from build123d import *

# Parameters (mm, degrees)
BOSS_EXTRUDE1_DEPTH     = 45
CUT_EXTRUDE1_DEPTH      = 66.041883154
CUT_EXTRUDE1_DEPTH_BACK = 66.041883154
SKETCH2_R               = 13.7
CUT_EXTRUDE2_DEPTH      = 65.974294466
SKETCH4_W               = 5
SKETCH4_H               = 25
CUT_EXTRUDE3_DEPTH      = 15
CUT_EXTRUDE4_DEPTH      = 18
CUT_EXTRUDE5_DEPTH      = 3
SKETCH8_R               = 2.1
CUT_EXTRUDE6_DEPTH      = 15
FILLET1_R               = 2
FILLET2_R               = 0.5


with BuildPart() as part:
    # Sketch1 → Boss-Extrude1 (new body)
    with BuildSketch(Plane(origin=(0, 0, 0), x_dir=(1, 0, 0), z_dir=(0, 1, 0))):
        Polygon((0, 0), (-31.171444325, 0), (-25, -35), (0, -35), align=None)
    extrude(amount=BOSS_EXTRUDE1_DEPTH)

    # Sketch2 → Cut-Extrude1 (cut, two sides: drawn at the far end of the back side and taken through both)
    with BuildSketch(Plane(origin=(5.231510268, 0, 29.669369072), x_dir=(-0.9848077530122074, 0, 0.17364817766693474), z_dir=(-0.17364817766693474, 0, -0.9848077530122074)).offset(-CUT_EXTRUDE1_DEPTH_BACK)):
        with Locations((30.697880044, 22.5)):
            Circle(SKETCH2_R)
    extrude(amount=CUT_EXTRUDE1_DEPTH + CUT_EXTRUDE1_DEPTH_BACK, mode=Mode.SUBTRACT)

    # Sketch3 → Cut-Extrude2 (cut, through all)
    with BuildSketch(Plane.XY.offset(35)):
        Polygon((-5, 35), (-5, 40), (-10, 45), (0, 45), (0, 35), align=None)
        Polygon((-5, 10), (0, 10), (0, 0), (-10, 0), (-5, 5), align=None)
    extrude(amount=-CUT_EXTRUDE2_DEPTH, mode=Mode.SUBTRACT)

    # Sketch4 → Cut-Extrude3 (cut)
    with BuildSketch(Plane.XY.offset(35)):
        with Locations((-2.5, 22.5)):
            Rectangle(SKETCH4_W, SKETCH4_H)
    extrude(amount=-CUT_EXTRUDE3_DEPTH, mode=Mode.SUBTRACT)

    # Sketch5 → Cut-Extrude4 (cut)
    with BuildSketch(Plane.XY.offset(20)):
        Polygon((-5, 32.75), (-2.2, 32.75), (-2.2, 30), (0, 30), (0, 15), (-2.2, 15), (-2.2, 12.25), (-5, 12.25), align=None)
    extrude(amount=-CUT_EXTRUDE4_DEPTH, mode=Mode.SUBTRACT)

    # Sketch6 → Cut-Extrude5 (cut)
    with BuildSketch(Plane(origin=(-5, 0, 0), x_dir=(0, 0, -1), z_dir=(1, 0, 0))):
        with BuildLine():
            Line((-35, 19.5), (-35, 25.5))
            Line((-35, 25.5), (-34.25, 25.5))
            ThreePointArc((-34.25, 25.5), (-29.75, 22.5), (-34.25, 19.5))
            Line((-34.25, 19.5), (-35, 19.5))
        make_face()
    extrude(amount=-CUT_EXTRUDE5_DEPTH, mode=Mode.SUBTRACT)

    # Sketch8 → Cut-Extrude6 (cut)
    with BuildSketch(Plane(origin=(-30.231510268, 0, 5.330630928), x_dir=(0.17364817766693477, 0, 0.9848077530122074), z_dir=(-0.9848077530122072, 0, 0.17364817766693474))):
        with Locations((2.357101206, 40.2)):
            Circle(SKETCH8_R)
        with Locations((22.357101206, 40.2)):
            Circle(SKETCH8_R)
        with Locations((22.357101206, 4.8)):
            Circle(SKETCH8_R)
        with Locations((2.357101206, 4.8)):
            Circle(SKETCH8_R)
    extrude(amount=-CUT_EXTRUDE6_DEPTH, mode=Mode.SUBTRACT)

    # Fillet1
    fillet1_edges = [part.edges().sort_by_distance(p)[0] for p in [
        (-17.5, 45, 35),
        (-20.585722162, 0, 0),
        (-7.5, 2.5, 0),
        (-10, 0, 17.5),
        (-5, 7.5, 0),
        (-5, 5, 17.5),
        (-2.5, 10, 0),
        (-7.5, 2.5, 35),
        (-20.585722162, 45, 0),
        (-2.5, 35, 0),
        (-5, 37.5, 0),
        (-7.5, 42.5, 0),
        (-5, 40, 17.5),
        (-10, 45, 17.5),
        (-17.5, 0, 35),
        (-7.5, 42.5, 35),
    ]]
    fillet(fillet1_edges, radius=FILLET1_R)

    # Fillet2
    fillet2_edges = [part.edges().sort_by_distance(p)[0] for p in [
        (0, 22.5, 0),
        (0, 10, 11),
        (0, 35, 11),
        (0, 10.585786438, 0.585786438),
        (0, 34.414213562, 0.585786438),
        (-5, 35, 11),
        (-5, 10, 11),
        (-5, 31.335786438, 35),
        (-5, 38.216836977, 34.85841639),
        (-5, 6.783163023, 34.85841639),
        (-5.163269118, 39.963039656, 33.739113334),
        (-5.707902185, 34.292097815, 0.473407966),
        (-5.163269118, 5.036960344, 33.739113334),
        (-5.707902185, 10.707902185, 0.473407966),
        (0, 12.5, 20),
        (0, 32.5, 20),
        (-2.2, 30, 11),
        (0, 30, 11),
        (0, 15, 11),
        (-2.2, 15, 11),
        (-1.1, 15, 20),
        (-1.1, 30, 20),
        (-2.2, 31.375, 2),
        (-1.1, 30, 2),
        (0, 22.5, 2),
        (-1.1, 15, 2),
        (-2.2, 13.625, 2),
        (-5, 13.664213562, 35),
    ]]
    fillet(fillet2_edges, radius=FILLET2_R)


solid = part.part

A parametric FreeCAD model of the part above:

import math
import FreeCAD as App
import Part
import Sketcher
Q = App.Units.Quantity


def edges_at(feature, points):
    """Names of the edges that pass closest to the given points."""
    edges = feature.Shape.Edges
    near = lambda p: min(range(len(edges)), key=lambda i: edges[i].distToShape(Part.Vertex(*p))[0])
    return sorted({f"Edge{near(p) + 1}" for p in points})

doc = App.newDocument("Part")
params = doc.addObject("Spreadsheet::Sheet", "Params")
for row, (alias, value) in enumerate([
    ("sketch1_width", "25 mm"),
    ("sketch1_height", "35 mm"),
    ("pad1_length", "45 mm"),
    ("sketch2_diameter", "27.4 mm"),
    ("sketch3_width", "5 mm"),
    ("sketch3_width2", "10 mm"),
    ("sketch4_width", "5 mm"),
    ("sketch4_height", "25 mm"),
    ("pocket3_length", "15 mm"),
    ("sketch5_height", "15 mm"),
    ("sketch5_width", "2.8 mm"),
    ("sketch5_width2", "2.2 mm"),
    ("sketch5_height2", "20.5 mm"),
    ("pocket4_length", "18 mm"),
    ("sketch6_width", "6 mm"),
    ("sketch6_radius", "3.25 mm"),
    ("pocket5_length", "3 mm"),
    ("sketch7_diameter", "4.2 mm"),
    ("pocket6_length", "15 mm"),
    ("fillet_radius", "2 mm"),
    ("fillet2_radius", "0.5 mm"),
], start=1):
    params.set(f"A{row}", alias)
    params.set(f"B{row}", "=" + value)
    params.setAlias(f"B{row}", alias)

body = doc.addObject("PartDesign::Body", "Body")

# Sketch on XZ plane
sketch1 = body.newObject("Sketcher::SketchObject", "Sketch")
sketch1.AttachmentSupport = (doc.getObject("XZ_Plane"), [""])
sketch1.MapMode = "FlatFace"
sketch1.addGeometry(Part.LineSegment(App.Vector(0, 0, 0), App.Vector(-31, 0, 0)), False)
sketch1.addGeometry(Part.LineSegment(App.Vector(-31, 0, 0), App.Vector(-25, 35, 0)), False)
sketch1.addGeometry(Part.LineSegment(App.Vector(-25, 35, 0), App.Vector(0, 35, 0)), False)
sketch1.addGeometry(Part.LineSegment(App.Vector(0, 35, 0), App.Vector(0, 0, 0)), False)
sketch1.addConstraint(Sketcher.Constraint("Coincident", 0, 2, 1, 1))
sketch1.addConstraint(Sketcher.Constraint("Coincident", 1, 2, 2, 1))
sketch1.addConstraint(Sketcher.Constraint("Coincident", 2, 2, 3, 1))
sketch1.addConstraint(Sketcher.Constraint("Coincident", 3, 2, 0, 1))
sketch1.addConstraint(Sketcher.Constraint("Horizontal", 0))
sketch1.addConstraint(Sketcher.Constraint("Horizontal", 2))
sketch1.addConstraint(Sketcher.Constraint("Vertical", 3))
sketch1.addConstraint(Sketcher.Constraint("Coincident", 3, 2, -1, 1))
sketch1.addConstraint(Sketcher.Constraint("DistanceX", 2, 1, 2, 2, 25.0))
sketch1.addConstraint(Sketcher.Constraint("DistanceY", 3, 2, 3, 1, 35.0))
sketch1.addConstraint(Sketcher.Constraint("Angle", 1, Q("80 deg")))
sketch1.setExpression("Constraints[8]", "Params.sketch1_width")
sketch1.setExpression("Constraints[9]", "Params.sketch1_height")
pad1 = body.newObject("PartDesign::Pad", "Pad")
pad1.Profile = sketch1
pad1.setExpression("Length", "Params.pad1_length")
pad1.Reversed = True

# Sketch on an angled plane
sketch2 = body.newObject("Sketcher::SketchObject", "Sketch001")
sketch2.Placement = App.Placement(App.Vector(5.23151, 0, 29.669369), App.Rotation(App.Vector(-0.984807753, 0, 0.173648178), App.Vector(0, 1, 0), App.Vector(-0.173648178, 0, -0.984807753), "ZXY"))
sketch2.addGeometry(Part.Circle(App.Vector(31, 23, 0), App.Vector(0, 0, 1), 14), False)
sketch2.addConstraint(Sketcher.Constraint("Diameter", 0, 27.4))
sketch2.addConstraint(Sketcher.Constraint("DistanceY", -1, 1, 0, 3, 22.5))
sketch2.addConstraint(Sketcher.Constraint("DistanceX", -1, 1, 0, 3, 30.69788))
sketch2.setExpression("Constraints[0]", "Params.sketch2_diameter")
pocket1 = body.newObject("PartDesign::Pocket", "Pocket")
pocket1.Profile = sketch2
pocket1.Type = "ThroughAll"
pocket1.Midplane = True

# Sketch on XY plane
sketch3 = body.newObject("Sketcher::SketchObject", "Sketch002")
sketch3.AttachmentSupport = (doc.getObject("XY_Plane"), [""])
sketch3.MapMode = "FlatFace"
sketch3.AttachmentOffset = App.Placement(App.Vector(0, 0, 35), App.Rotation())
sketch3.addGeometry(Part.LineSegment(App.Vector(-5, 40, 0), App.Vector(-5, 35, 0)), False)
sketch3.addGeometry(Part.LineSegment(App.Vector(-5, 35, 0), App.Vector(0, 35, 0)), False)
sketch3.addGeometry(Part.LineSegment(App.Vector(0, 35, 0), App.Vector(0, 45, 0)), False)
sketch3.addGeometry(Part.LineSegment(App.Vector(0, 45, 0), App.Vector(-10, 45, 0)), False)
sketch3.addGeometry(Part.LineSegment(App.Vector(-10, 45, 0), App.Vector(-5, 40, 0)), False)
sketch3.addGeometry(Part.LineSegment(App.Vector(0, 10, 0), App.Vector(-5, 10, 0)), False)
sketch3.addGeometry(Part.LineSegment(App.Vector(-5, 10, 0), App.Vector(-5, 5, 0)), False)
sketch3.addGeometry(Part.LineSegment(App.Vector(-5, 5, 0), App.Vector(-10, 0, 0)), False)
sketch3.addGeometry(Part.LineSegment(App.Vector(-10, 0, 0), App.Vector(0, 0, 0)), False)
sketch3.addGeometry(Part.LineSegment(App.Vector(0, 0, 0), App.Vector(0, 10, 0)), False)
sketch3.addConstraint(Sketcher.Constraint("Coincident", 0, 2, 1, 1))
sketch3.addConstraint(Sketcher.Constraint("Coincident", 1, 2, 2, 1))
sketch3.addConstraint(Sketcher.Constraint("Coincident", 2, 2, 3, 1))
sketch3.addConstraint(Sketcher.Constraint("Coincident", 3, 2, 4, 1))
sketch3.addConstraint(Sketcher.Constraint("Coincident", 4, 2, 0, 1))
sketch3.addConstraint(Sketcher.Constraint("Coincident", 5, 2, 6, 1))
sketch3.addConstraint(Sketcher.Constraint("Coincident", 6, 2, 7, 1))
sketch3.addConstraint(Sketcher.Constraint("Coincident", 7, 2, 8, 1))
sketch3.addConstraint(Sketcher.Constraint("Coincident", 8, 2, 9, 1))
sketch3.addConstraint(Sketcher.Constraint("Coincident", 9, 2, 5, 1))
sketch3.addConstraint(Sketcher.Constraint("Vertical", 0))
sketch3.addConstraint(Sketcher.Constraint("Horizontal", 1))
sketch3.addConstraint(Sketcher.Constraint("Vertical", 2))
sketch3.addConstraint(Sketcher.Constraint("Horizontal", 3))
sketch3.addConstraint(Sketcher.Constraint("Horizontal", 5))
sketch3.addConstraint(Sketcher.Constraint("Vertical", 6))
sketch3.addConstraint(Sketcher.Constraint("Horizontal", 8))
sketch3.addConstraint(Sketcher.Constraint("Vertical", 9))
sketch3.addConstraint(Sketcher.Constraint("Coincident", 8, 2, -1, 1))
sketch3.addConstraint(Sketcher.Constraint("PointOnObject", 1, 2, -2))
sketch3.addConstraint(Sketcher.Constraint("Perpendicular", 4, 7))
sketch3.addConstraint(Sketcher.Constraint("Vertical", 4, 2, 5, 2))
sketch3.addConstraint(Sketcher.Constraint("Vertical", 3, 2, 7, 2))
sketch3.addConstraint(Sketcher.Constraint("Equal", 5, 0))
sketch3.addConstraint(Sketcher.Constraint("Equal", 8, 2))
sketch3.addConstraint(Sketcher.Constraint("Equal", 0, 6))
sketch3.addConstraint(Sketcher.Constraint("DistanceX", 1, 1, 1, 2, 5.0))
sketch3.addConstraint(Sketcher.Constraint("DistanceX", 3, 2, 3, 1, 10.0))
sketch3.addConstraint(Sketcher.Constraint("DistanceY", -1, 1, 0, 2, 35.0))
sketch3.setExpression("Constraints[26]", "Params.sketch3_width")
sketch3.setExpression("Constraints[27]", "Params.sketch3_width2")
pocket2 = body.newObject("PartDesign::Pocket", "Pocket001")
pocket2.Profile = sketch3
pocket2.Type = "ThroughAll"

# Sketch on XY plane
sketch4 = body.newObject("Sketcher::SketchObject", "Sketch003")
sketch4.AttachmentSupport = (doc.getObject("XY_Plane"), [""])
sketch4.MapMode = "FlatFace"
sketch4.AttachmentOffset = App.Placement(App.Vector(0, 0, 35), App.Rotation())
sketch4.addGeometry(Part.LineSegment(App.Vector(-5, 35, 0), App.Vector(-5, 10, 0)), False)
sketch4.addGeometry(Part.LineSegment(App.Vector(-5, 10, 0), App.Vector(0, 10, 0)), False)
sketch4.addGeometry(Part.LineSegment(App.Vector(0, 10, 0), App.Vector(0, 35, 0)), False)
sketch4.addGeometry(Part.LineSegment(App.Vector(0, 35, 0), App.Vector(-5, 35, 0)), False)
sketch4.addConstraint(Sketcher.Constraint("Coincident", 0, 2, 1, 1))
sketch4.addConstraint(Sketcher.Constraint("Coincident", 1, 2, 2, 1))
sketch4.addConstraint(Sketcher.Constraint("Coincident", 2, 2, 3, 1))
sketch4.addConstraint(Sketcher.Constraint("Coincident", 3, 2, 0, 1))
sketch4.addConstraint(Sketcher.Constraint("Vertical", 0))
sketch4.addConstraint(Sketcher.Constraint("Horizontal", 1))
sketch4.addConstraint(Sketcher.Constraint("Vertical", 2))
sketch4.addConstraint(Sketcher.Constraint("Horizontal", 3))
sketch4.addConstraint(Sketcher.Constraint("PointOnObject", 1, 2, -2))
sketch4.addConstraint(Sketcher.Constraint("DistanceX", 1, 1, 1, 2, 5.0))
sketch4.addConstraint(Sketcher.Constraint("DistanceY", 0, 2, 0, 1, 25.0))
sketch4.addConstraint(Sketcher.Constraint("DistanceY", -1, 1, 0, 2, 10.0))
sketch4.setExpression("Constraints[9]", "Params.sketch4_width")
sketch4.setExpression("Constraints[10]", "Params.sketch4_height")
pocket3 = body.newObject("PartDesign::Pocket", "Pocket002")
pocket3.Profile = sketch4
pocket3.setExpression("Length", "Params.pocket3_length")

# Sketch on XY plane
sketch5 = body.newObject("Sketcher::SketchObject", "Sketch004")
sketch5.AttachmentSupport = (doc.getObject("XY_Plane"), [""])
sketch5.MapMode = "FlatFace"
sketch5.AttachmentOffset = App.Placement(App.Vector(0, 0, 20), App.Rotation())
sketch5.addGeometry(Part.LineSegment(App.Vector(-2.2, 32.8, 0), App.Vector(-5, 32.8, 0)), False)
sketch5.addGeometry(Part.LineSegment(App.Vector(-5, 32.8, 0), App.Vector(-5, 12.2, 0)), False)
sketch5.addGeometry(Part.LineSegment(App.Vector(-5, 12.2, 0), App.Vector(-2.2, 12.2, 0)), False)
sketch5.addGeometry(Part.LineSegment(App.Vector(-2.2, 12.2, 0), App.Vector(-2.2, 15, 0)), False)
sketch5.addGeometry(Part.LineSegment(App.Vector(-2.2, 15, 0), App.Vector(0, 15, 0)), False)
sketch5.addGeometry(Part.LineSegment(App.Vector(0, 15, 0), App.Vector(0, 30, 0)), False)
sketch5.addGeometry(Part.LineSegment(App.Vector(0, 30, 0), App.Vector(-2.2, 30, 0)), False)
sketch5.addGeometry(Part.LineSegment(App.Vector(-2.2, 30, 0), App.Vector(-2.2, 32.8, 0)), False)
sketch5.addConstraint(Sketcher.Constraint("Coincident", 0, 2, 1, 1))
sketch5.addConstraint(Sketcher.Constraint("Coincident", 1, 2, 2, 1))
sketch5.addConstraint(Sketcher.Constraint("Coincident", 2, 2, 3, 1))
sketch5.addConstraint(Sketcher.Constraint("Coincident", 3, 2, 4, 1))
sketch5.addConstraint(Sketcher.Constraint("Coincident", 4, 2, 5, 1))
sketch5.addConstraint(Sketcher.Constraint("Coincident", 5, 2, 6, 1))
sketch5.addConstraint(Sketcher.Constraint("Coincident", 6, 2, 7, 1))
sketch5.addConstraint(Sketcher.Constraint("Coincident", 7, 2, 0, 1))
sketch5.addConstraint(Sketcher.Constraint("Horizontal", 0))
sketch5.addConstraint(Sketcher.Constraint("Vertical", 1))
sketch5.addConstraint(Sketcher.Constraint("Horizontal", 2))
sketch5.addConstraint(Sketcher.Constraint("Vertical", 3))
sketch5.addConstraint(Sketcher.Constraint("Horizontal", 4))
sketch5.addConstraint(Sketcher.Constraint("Vertical", 5))
sketch5.addConstraint(Sketcher.Constraint("Horizontal", 6))
sketch5.addConstraint(Sketcher.Constraint("Vertical", 7))
sketch5.addConstraint(Sketcher.Constraint("PointOnObject", 4, 2, -2))
sketch5.addConstraint(Sketcher.Constraint("Vertical", 3, 2, 6, 2))
sketch5.addConstraint(Sketcher.Constraint("Equal", 3, 7))
sketch5.addConstraint(Sketcher.Constraint("DistanceY", 5, 1, 5, 2, 15.0))
sketch5.addConstraint(Sketcher.Constraint("DistanceX", 0, 2, 0, 1, 2.8))
sketch5.addConstraint(Sketcher.Constraint("DistanceX", 4, 1, 4, 2, 2.2))
sketch5.addConstraint(Sketcher.Constraint("DistanceY", 1, 2, 1, 1, 20.5))
sketch5.addConstraint(Sketcher.Constraint("DistanceY", -1, 1, 3, 2, 15.0))
sketch5.setExpression("Constraints[19]", "Params.sketch5_height")
sketch5.setExpression("Constraints[20]", "Params.sketch5_width")
sketch5.setExpression("Constraints[21]", "Params.sketch5_width2")
sketch5.setExpression("Constraints[22]", "Params.sketch5_height2")
pocket4 = body.newObject("PartDesign::Pocket", "Pocket003")
pocket4.Profile = sketch5
pocket4.setExpression("Length", "Params.pocket4_length")

# Sketch on YZ plane
sketch6 = body.newObject("Sketcher::SketchObject", "Sketch005")
sketch6.AttachmentSupport = (doc.getObject("YZ_Plane"), [""])
sketch6.MapMode = "FlatFace"
sketch6.AttachmentOffset = App.Placement(App.Vector(0, 0, -5), App.Rotation())
sketch6.addGeometry(Part.LineSegment(App.Vector(25.5, 35, 0), App.Vector(19.5, 35, 0)), False)
sketch6.addGeometry(Part.LineSegment(App.Vector(19.5, 35, 0), App.Vector(19.5, 34.2, 0)), False)
sketch6.addGeometry(Part.ArcOfCircle(Part.Circle(App.Vector(22.5, 33, 0), App.Vector(0, 0, 1), 3.2), math.radians(157), math.radians(383)), False)
sketch6.addGeometry(Part.LineSegment(App.Vector(25.5, 34.2, 0), App.Vector(25.5, 35, 0)), False)
sketch6.addConstraint(Sketcher.Constraint("Coincident", 0, 2, 1, 1))
sketch6.addConstraint(Sketcher.Constraint("Coincident", 1, 2, 2, 1))
sketch6.addConstraint(Sketcher.Constraint("Coincident", 2, 2, 3, 1))
sketch6.addConstraint(Sketcher.Constraint("Coincident", 3, 2, 0, 1))
sketch6.addConstraint(Sketcher.Constraint("Horizontal", 0))
sketch6.addConstraint(Sketcher.Constraint("Vertical", 1))
sketch6.addConstraint(Sketcher.Constraint("Vertical", 3))
sketch6.addConstraint(Sketcher.Constraint("Horizontal", 1, 2, 2, 2))
sketch6.addConstraint(Sketcher.Constraint("DistanceX", 0, 2, 0, 1, 6.0))
sketch6.addConstraint(Sketcher.Constraint("Radius", 2, 3.25))
sketch6.addConstraint(Sketcher.Constraint("DistanceY", -1, 1, 2, 3, 33.0))
sketch6.addConstraint(Sketcher.Constraint("DistanceY", -1, 1, 0, 2, 35.0))
sketch6.addConstraint(Sketcher.Constraint("DistanceX", -1, 1, 2, 3, 22.5))
sketch6.setExpression("Constraints[8]", "Params.sketch6_width")
sketch6.setExpression("Constraints[9]", "Params.sketch6_radius")
pocket5 = body.newObject("PartDesign::Pocket", "Pocket004")
pocket5.Profile = sketch6
pocket5.setExpression("Length", "Params.pocket5_length")

# Sketch on an angled plane
sketch7 = body.newObject("Sketcher::SketchObject", "Sketch006")
sketch7.Placement = App.Placement(App.Vector(-30.23151, 0, 5.330631), App.Rotation(App.Vector(0.173648178, 0, 0.984807753), App.Vector(0, 1, 0), App.Vector(-0.984807753, 0, 0.173648178), "ZXY"))
sketch7.addGeometry(Part.Circle(App.Vector(2.4, 40.2, 0), App.Vector(0, 0, 1), 2.1), False)
sketch7.addGeometry(Part.Circle(App.Vector(22.4, 40.2, 0), App.Vector(0, 0, 1), 2.1), False)
sketch7.addGeometry(Part.Circle(App.Vector(22.4, 4.8, 0), App.Vector(0, 0, 1), 2.1), False)
sketch7.addGeometry(Part.Circle(App.Vector(2.4, 4.8, 0), App.Vector(0, 0, 1), 2.1), False)
sketch7.addConstraint(Sketcher.Constraint("Equal", 0, 1))
sketch7.addConstraint(Sketcher.Constraint("Equal", 1, 2))
sketch7.addConstraint(Sketcher.Constraint("Equal", 2, 3))
sketch7.addConstraint(Sketcher.Constraint("Horizontal", 0, 3, 1, 3))
sketch7.addConstraint(Sketcher.Constraint("Horizontal", 2, 3, 3, 3))
sketch7.addConstraint(Sketcher.Constraint("Vertical", 1, 3, 2, 3))
sketch7.addConstraint(Sketcher.Constraint("Vertical", 0, 3, 3, 3))
sketch7.addConstraint(Sketcher.Constraint("Diameter", 0, 4.2))
sketch7.addConstraint(Sketcher.Constraint("DistanceX", 0, 3, 1, 3, 20.0))
sketch7.addConstraint(Sketcher.Constraint("DistanceY", -1, 1, 0, 3, 40.2))
sketch7.addConstraint(Sketcher.Constraint("DistanceY", -1, 1, 2, 3, 4.8))
sketch7.addConstraint(Sketcher.Constraint("DistanceX", -1, 1, 0, 3, 2.357101))
sketch7.setExpression("Constraints[7]", "Params.sketch7_diameter")
pocket6 = body.newObject("PartDesign::Pocket", "Pocket005")
pocket6.Profile = sketch7
pocket6.setExpression("Length", "Params.pocket6_length")
doc.recompute()

fillet = body.newObject("PartDesign::Fillet", "Fillet")
fillet.Base = (pocket6, edges_at(pocket6, [
    (-17.5, 45, 35),
    (-20.586, 0, 0),
    (-7.5, 2.5, 0),
    (-10, 0, 17.5),
    (-5, 7.5, 0),
    (-5, 5, 17.5),
    (-2.5, 10, 0),
    (-7.5, 2.5, 35),
    (-20.586, 45, 0),
    (-2.5, 35, 0),
    (-5, 37.5, 0),
    (-7.5, 42.5, 0),
    (-5, 40, 17.5),
    (-10, 45, 17.5),
    (-17.5, 0, 35),
    (-7.5, 42.5, 35),
]))
fillet.setExpression("Radius", "Params.fillet_radius")
doc.recompute()

fillet2 = body.newObject("PartDesign::Fillet", "Fillet001")
fillet2.Base = (fillet, edges_at(fillet, [
    (0, 22.5, 0),
    (0, 10, 11),
    (0, 35, 11),
    (0, 10.586, 0.586),
    (0, 34.414, 0.586),
    (-5, 35, 11),
    (-5, 10, 11),
    (-5, 31.336, 35),
    (-5, 38.217, 34.858),
    (-5, 6.783, 34.858),
    (-5.163, 39.963, 33.739),
    (-5.708, 34.292, 0.473),
    (-5.163, 5.037, 33.739),
    (-5.708, 10.708, 0.473),
    (0, 12.5, 20),
    (0, 32.5, 20),
    (-2.2, 30, 11),
    (0, 30, 11),
    (0, 15, 11),
    (-2.2, 15, 11),
    (-1.1, 15, 20),
    (-1.1, 30, 20),
    (-2.2, 31.375, 2),
    (-1.1, 30, 2),
    (0, 22.5, 2),
    (-1.1, 15, 2),
    (-2.2, 13.625, 2),
    (-5, 13.664, 35),
]))
fillet2.setExpression("Radius", "Params.fillet2_radius")

doc.recompute()
